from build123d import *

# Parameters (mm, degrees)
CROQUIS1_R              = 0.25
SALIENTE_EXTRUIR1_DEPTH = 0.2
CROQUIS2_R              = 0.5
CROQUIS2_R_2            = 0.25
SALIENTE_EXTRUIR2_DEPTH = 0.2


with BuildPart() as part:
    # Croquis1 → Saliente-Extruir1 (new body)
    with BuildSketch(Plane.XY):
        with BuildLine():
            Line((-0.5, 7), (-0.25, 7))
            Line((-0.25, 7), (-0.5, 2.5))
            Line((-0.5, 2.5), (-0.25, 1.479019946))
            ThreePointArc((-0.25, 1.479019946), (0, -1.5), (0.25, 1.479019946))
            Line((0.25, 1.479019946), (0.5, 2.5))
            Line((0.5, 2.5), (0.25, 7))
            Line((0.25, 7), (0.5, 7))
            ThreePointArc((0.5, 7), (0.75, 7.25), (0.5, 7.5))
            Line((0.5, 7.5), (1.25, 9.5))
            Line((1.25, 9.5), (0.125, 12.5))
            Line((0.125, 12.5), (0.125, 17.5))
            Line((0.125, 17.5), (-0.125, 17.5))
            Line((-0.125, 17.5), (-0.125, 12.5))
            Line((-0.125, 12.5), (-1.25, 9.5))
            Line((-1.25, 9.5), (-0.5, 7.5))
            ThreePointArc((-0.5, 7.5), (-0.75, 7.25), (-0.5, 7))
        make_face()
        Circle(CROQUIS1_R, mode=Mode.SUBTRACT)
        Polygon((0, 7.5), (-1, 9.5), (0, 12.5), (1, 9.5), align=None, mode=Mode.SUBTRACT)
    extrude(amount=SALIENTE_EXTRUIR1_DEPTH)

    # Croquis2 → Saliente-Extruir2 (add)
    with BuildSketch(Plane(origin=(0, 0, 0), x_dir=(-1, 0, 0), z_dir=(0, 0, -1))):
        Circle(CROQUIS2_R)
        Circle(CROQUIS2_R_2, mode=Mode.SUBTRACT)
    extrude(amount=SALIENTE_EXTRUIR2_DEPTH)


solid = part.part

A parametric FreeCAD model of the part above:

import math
import FreeCAD as App
import Part
import Sketcher


def add_polygon(sketch, points):
    """Adds a closed chain of lines whose ends are joined by coincident constraints."""
    first, n = sketch.GeometryCount, len(points)
    for a, b in zip(points, points[1:] + points[:1]):
        sketch.addGeometry(Part.LineSegment(App.Vector(*a, 0), App.Vector(*b, 0)), False)
    for i in range(n):
        sketch.addConstraint(Sketcher.Constraint("Coincident", first + i, 2, first + (i + 1) % n, 1))

doc = App.newDocument("Part")
params = doc.addObject("Spreadsheet::Sheet", "Params")
for row, (alias, value) in enumerate([
    ("sketch1_diameter", "0.5 mm"),
    ("sketch1_radius", "1.5 mm"),
    ("sketch1_height", "5 mm"),
    ("sketch1_width", "0.25 mm"),
    ("pad1_length", "0.2 mm"),
    ("sketch2_diameter", "1 mm"),
    ("sketch2_diameter2", "0.5 mm"),
    ("pad2_length", "0.2 mm"),
], start=1):
    params.set(f"A{row}", alias)
    params.set(f"B{row}", "=" + value)
    params.setAlias(f"B{row}", alias)

body = doc.addObject("PartDesign::Body", "Body")

sketch1 = body.newObject("Sketcher::SketchObject", "Sketch")
sketch1.AttachmentSupport = (doc.getObject("XY_Plane"), [""])
sketch1.MapMode = "FlatFace"
sketch1.addGeometry(Part.LineSegment(App.Vector(-0.5, 7, 0), App.Vector(-0.25, 7, 0)), False)
sketch1.addGeometry(Part.LineSegment(App.Vector(-0.25, 7, 0), App.Vector(-0.5, 2.5, 0)), False)
sketch1.addGeometry(Part.LineSegment(App.Vector(-0.5, 2.5, 0), App.Vector(-0.25, 1.48, 0)), False)
sketch1.addGeometry(Part.ArcOfCircle(Part.Circle(App.Vector(0, 0, 0), App.Vector(0, 0, 1), 1.5), math.radians(100), math.radians(440)), False)
sketch1.addGeometry(Part.LineSegment(App.Vector(0.25, 1.48, 0), App.Vector(0.5, 2.5, 0)), False)
sketch1.addGeometry(Part.LineSegment(App.Vector(0.5, 2.5, 0), App.Vector(0.25, 7, 0)), False)
sketch1.addGeometry(Part.LineSegment(App.Vector(0.25, 7, 0), App.Vector(0.5, 7, 0)), False)
sketch1.addGeometry(Part.ArcOfCircle(Part.Circle(App.Vector(0.5, 7.25, 0), App.Vector(0, 0, 1), 0.25), math.radians(-90), math.radians(90)), False)
sketch1.addGeometry(Part.LineSegment(App.Vector(0.5, 7.5, 0), App.Vector(1.25, 9.5, 0)), False)
sketch1.addGeometry(Part.LineSegment(App.Vector(1.25, 9.5, 0), App.Vector(0.12, 12.5, 0)), False)
sketch1.addGeometry(Part.LineSegment(App.Vector(0.12, 12.5, 0), App.Vector(0.12, 17.5, 0)), False)
sketch1.addGeometry(Part.LineSegment(App.Vector(0.12, 17.5, 0), App.Vector(-0.12, 17.5, 0)), False)
sketch1.addGeometry(Part.LineSegment(App.Vector(-0.12, 17.5, 0), App.Vector(-0.12, 12.5, 0)), False)
sketch1.addGeometry(Part.LineSegment(App.Vector(-0.12, 12.5, 0), App.Vector(-1.25, 9.5, 0)), False)
sketch1.addGeometry(Part.LineSegment(App.Vector(-1.25, 9.5, 0), App.Vector(-0.5, 7.5, 0)), False)
sketch1.addGeometry(Part.ArcOfCircle(Part.Circle(App.Vector(-0.5, 7.25, 0), App.Vector(0, 0, 1), 0.25), math.radians(90), math.radians(270)), False)
sketch1.addGeometry(Part.Circle(App.Vector(0, 0, 0), App.Vector(0, 0, 1), 0.25), False)
add_polygon(sketch1, [(1, 9.5), (0, 7.5), (-1, 9.5), (0, 12.5)])
sketch1.addConstraint(Sketcher.Constraint("Coincident", 0, 2, 1, 1))
sketch1.addConstraint(Sketcher.Constraint("Coincident", 1, 2, 2, 1))
sketch1.addConstraint(Sketcher.Constraint("Coincident", 2, 2, 3, 1))
sketch1.addConstraint(Sketcher.Constraint("Coincident", 3, 2, 4, 1))
sketch1.addConstraint(Sketcher.Constraint("Coincident", 4, 2, 5, 1))
sketch1.addConstraint(Sketcher.Constraint("Coincident", 5, 2, 6, 1))
sketch1.addConstraint(Sketcher.Constraint("Tangent", 6, 2, 7, 1))
sketch1.addConstraint(Sketcher.Constraint("Coincident", 7, 2, 8, 1))
sketch1.addConstraint(Sketcher.Constraint("Coincident", 8, 2, 9, 1))
sketch1.addConstraint(Sketcher.Constraint("Coincident", 9, 2, 10, 1))
sketch1.addConstraint(Sketcher.Constraint("Coincident", 10, 2, 11, 1))
sketch1.addConstraint(Sketcher.Constraint("Coincident", 11, 2, 12, 1))
sketch1.addConstraint(Sketcher.Constraint("Coincident", 12, 2, 13, 1))
sketch1.addConstraint(Sketcher.Constraint("Coincident", 13, 2, 14, 1))
sketch1.addConstraint(Sketcher.Constraint("Coincident", 14, 2, 15, 1))
sketch1.addConstraint(Sketcher.Constraint("Tangent", 15, 2, 0, 1))
sketch1.addConstraint(Sketcher.Constraint("Horizontal", 0))
sketch1.addConstraint(Sketcher.Constraint("Horizontal", 6))
sketch1.addConstraint(Sketcher.Constraint("Vertical", 10))
sketch1.addConstraint(Sketcher.Constraint("Horizontal", 11))
sketch1.addConstraint(Sketcher.Constraint("Vertical", 12))
sketch1.addConstraint(Sketcher.Constraint("Coincident", 3, 3, -1, 1))
sketch1.addConstraint(Sketcher.Constraint("Coincident", 16, 3, -1, 1))
sketch1.addConstraint(Sketcher.Constraint("Equal", 7, 15))
sketch1.addConstraint(Sketcher.Constraint("Equal", 15, 16))
sketch1.addConstraint(Sketcher.Constraint("Symmetric", 7, 3, 15, 3, -2))
sketch1.addConstraint(Sketcher.Constraint("Symmetric", 1, 2, 4, 2, -2))
sketch1.addConstraint(Sketcher.Constraint("Symmetric", 9, 2, 12, 2, -2))
sketch1.addConstraint(Sketcher.Constraint("Symmetric", 8, 2, 13, 2, -2))
sketch1.addConstraint(Sketcher.Constraint("Symmetric", 18, 2, 20, 2, -2))
sketch1.addConstraint(Sketcher.Constraint("PointOnObject", 17, 2, -2))
sketch1.addConstraint(Sketcher.Constraint("PointOnObject", 19, 2, -2))
sketch1.addConstraint(Sketcher.Constraint("Parallel", 8, 13))
sketch1.addConstraint(Sketcher.Constraint("Parallel", 9, 14))
sketch1.addConstraint(Sketcher.Constraint("Horizontal", 2, 2, 3, 2))
sketch1.addConstraint(Sketcher.Constraint("Horizontal", 14, 2, 17, 2))
sketch1.addConstraint(Sketcher.Constraint("Horizontal", 13, 2, 18, 2))
sketch1.addConstraint(Sketcher.Constraint("Horizontal", 12, 2, 19, 2))
sketch1.addConstraint(Sketcher.Constraint("Vertical", 15, 3, 1, 2))
sketch1.addConstraint(Sketcher.Constraint("Vertical", 0, 2, 2, 2))
sketch1.addConstraint(Sketcher.Constraint("Vertical", 3, 2, 5, 2))
sketch1.addConstraint(Sketcher.Constraint("Vertical", 6, 2, 7, 2))
sketch1.addConstraint(Sketcher.Constraint("Equal", 6, 11))
sketch1.addConstraint(Sketcher.Constraint("Diameter", 16, 0.5))
sketch1.addConstraint(Sketcher.Constraint("Radius", 3, 1.5))
sketch1.addConstraint(Sketcher.Constraint("DistanceY", 10, 1, 10, 2, 5.0))
sketch1.addConstraint(Sketcher.Constraint("DistanceY", -1, 1, 0, 2, 7.0))
sketch1.addConstraint(Sketcher.Constraint("DistanceX", 18, 2, -1, 1, 1.0))
sketch1.addConstraint(Sketcher.Constraint("DistanceX", 15, 3, 7, 3, 1.0))
sketch1.addConstraint(Sketcher.Constraint("DistanceY", 7, 2, 8, 2, 2.0))
sketch1.addConstraint(Sketcher.Constraint("DistanceX", 5, 2, 8, 2, 1.0))
sketch1.addConstraint(Sketcher.Constraint("DistanceX", 0, 1, 0, 2, 0.25))
sketch1.addConstraint(Sketcher.Constraint("DistanceY", -1, 1, 1, 2, 2.5))
sketch1.setExpression("Constraints[47]", "Params.sketch1_diameter")
sketch1.setExpression("Constraints[48]", "Params.sketch1_radius")
sketch1.setExpression("Constraints[49]", "Params.sketch1_height")
sketch1.setExpression("Constraints[55]", "Params.sketch1_width")
pad1 = body.newObject("PartDesign::Pad", "Pad")
pad1.Profile = sketch1
pad1.setExpression("Length", "Params.pad1_length")

sketch2 = body.newObject("Sketcher::SketchObject", "Sketch001")
sketch2.AttachmentSupport = (doc.getObject("XY_Plane"), [""])
sketch2.MapMode = "FlatFace"
sketch2.addGeometry(Part.Circle(App.Vector(0, 0, 0), App.Vector(0, 0, 1), 0.5), False)
sketch2.addGeometry(Part.Circle(App.Vector(0, 0, 0), App.Vector(0, 0, 1), 0.25), False)
sketch2.addConstraint(Sketcher.Constraint("Coincident", 0, 3, -1, 1))
sketch2.addConstraint(Sketcher.Constraint("Coincident", 1, 3, -1, 1))
sketch2.addConstraint(Sketcher.Constraint("Diameter", 0, 1.0))
sketch2.addConstraint(Sketcher.Constraint("Diameter", 1, 0.5))
sketch2.setExpression("Constraints[2]", "Params.sketch2_diameter")
sketch2.setExpression("Constraints[3]", "Params.sketch2_diameter2")
pad2 = body.newObject("PartDesign::Pad", "Pad001")
pad2.Profile = sketch2
pad2.setExpression("Length", "Params.pad2_length")
pad2.Reversed = True

doc.recompute()
